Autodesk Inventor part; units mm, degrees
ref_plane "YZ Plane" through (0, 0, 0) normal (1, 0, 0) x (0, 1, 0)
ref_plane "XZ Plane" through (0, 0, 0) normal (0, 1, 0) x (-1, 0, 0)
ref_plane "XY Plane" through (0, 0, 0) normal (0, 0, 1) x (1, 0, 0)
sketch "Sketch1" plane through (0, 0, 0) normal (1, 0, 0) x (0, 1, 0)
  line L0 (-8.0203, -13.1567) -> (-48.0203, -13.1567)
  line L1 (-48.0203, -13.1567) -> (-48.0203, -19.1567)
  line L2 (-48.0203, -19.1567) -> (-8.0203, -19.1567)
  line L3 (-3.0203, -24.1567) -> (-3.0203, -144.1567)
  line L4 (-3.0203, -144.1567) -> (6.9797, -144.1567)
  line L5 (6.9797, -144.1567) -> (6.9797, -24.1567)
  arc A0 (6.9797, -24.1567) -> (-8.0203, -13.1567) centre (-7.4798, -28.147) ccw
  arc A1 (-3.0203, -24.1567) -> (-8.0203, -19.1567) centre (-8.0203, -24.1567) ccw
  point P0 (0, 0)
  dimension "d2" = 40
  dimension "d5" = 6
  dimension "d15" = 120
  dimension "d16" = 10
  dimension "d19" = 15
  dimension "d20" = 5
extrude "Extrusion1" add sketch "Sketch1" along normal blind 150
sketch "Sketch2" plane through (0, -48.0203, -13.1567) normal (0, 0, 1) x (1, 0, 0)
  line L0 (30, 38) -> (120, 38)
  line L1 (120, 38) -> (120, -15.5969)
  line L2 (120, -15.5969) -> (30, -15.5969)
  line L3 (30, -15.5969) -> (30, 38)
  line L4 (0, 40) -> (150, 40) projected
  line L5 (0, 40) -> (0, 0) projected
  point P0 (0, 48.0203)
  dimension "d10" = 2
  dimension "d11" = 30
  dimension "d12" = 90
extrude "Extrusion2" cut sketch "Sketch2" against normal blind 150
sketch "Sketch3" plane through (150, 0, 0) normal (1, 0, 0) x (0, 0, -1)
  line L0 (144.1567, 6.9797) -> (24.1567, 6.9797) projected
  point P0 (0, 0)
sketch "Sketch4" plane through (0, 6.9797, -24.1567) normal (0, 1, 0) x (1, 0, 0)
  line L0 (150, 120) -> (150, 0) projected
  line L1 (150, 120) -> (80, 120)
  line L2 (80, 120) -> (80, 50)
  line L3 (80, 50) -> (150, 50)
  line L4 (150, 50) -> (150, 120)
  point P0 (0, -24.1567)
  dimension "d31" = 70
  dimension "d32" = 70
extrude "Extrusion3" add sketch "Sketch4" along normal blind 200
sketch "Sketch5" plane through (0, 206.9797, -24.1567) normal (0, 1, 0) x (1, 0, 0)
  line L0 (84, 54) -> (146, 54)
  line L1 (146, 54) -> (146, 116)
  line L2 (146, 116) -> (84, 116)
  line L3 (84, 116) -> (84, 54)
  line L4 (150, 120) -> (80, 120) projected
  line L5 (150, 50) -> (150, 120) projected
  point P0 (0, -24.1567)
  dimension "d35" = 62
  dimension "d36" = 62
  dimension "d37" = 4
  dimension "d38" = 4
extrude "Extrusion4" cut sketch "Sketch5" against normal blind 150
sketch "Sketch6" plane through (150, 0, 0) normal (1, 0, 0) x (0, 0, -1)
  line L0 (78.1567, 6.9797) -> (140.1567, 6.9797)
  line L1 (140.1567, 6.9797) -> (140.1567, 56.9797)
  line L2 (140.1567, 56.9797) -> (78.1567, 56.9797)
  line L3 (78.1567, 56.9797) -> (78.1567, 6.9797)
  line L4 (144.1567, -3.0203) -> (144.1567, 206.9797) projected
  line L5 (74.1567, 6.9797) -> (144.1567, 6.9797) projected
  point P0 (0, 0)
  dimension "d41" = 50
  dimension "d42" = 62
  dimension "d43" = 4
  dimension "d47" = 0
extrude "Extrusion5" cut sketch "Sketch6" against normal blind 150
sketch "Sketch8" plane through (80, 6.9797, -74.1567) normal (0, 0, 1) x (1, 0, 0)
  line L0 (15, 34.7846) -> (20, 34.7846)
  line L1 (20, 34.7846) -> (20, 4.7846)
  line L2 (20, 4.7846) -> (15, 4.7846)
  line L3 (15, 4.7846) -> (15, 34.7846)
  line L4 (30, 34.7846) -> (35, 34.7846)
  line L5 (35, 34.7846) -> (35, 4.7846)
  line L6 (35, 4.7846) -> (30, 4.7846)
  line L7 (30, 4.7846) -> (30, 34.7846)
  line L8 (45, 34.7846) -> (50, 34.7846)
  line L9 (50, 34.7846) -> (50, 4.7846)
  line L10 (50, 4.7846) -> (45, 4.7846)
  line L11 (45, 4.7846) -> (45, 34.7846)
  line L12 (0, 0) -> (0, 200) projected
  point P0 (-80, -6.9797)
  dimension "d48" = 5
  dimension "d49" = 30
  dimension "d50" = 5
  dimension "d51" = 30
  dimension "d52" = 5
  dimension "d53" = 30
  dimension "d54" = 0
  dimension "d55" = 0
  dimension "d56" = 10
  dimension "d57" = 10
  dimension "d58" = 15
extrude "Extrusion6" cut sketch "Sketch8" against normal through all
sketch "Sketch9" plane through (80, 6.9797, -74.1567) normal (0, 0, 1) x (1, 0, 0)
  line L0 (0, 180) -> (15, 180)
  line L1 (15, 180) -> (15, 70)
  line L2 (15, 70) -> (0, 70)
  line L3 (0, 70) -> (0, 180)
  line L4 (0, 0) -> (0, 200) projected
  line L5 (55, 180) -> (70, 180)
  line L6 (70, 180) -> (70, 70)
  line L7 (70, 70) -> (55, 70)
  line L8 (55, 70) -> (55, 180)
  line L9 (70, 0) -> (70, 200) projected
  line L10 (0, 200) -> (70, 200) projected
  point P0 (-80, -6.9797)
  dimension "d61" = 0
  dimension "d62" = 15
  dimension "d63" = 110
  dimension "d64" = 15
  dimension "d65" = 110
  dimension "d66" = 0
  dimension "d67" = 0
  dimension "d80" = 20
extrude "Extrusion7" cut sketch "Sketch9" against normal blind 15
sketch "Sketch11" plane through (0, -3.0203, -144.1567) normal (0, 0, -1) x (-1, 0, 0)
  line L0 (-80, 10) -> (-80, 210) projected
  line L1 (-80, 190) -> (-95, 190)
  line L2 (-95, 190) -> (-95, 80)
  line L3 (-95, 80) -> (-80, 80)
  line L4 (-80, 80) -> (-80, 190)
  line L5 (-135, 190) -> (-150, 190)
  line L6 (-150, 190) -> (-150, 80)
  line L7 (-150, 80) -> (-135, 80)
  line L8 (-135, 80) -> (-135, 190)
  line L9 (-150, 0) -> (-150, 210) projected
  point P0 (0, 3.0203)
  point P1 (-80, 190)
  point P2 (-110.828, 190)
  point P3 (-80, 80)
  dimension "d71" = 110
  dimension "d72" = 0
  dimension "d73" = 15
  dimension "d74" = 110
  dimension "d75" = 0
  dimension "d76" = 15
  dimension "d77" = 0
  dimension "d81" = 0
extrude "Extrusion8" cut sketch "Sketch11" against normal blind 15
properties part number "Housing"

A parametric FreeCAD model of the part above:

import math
import FreeCAD as App
import Part
import Sketcher


def add_polygon(sketch, points):
    """Adds a closed chain of lines whose ends are joined by coincident constraints."""
    first, n = sketch.GeometryCount, len(points)
    for a, b in zip(points, points[1:] + points[:1]):
        sketch.addGeometry(Part.LineSegment(App.Vector(*a, 0), App.Vector(*b, 0)), False)
    for i in range(n):
        sketch.addConstraint(Sketcher.Constraint("Coincident", first + i, 2, first + (i + 1) % n, 1))

doc = App.newDocument("Part")
body = doc.addObject("PartDesign::Body", "Body")

# Sketch on YZ plane
sketch1 = body.newObject("Sketcher::SketchObject", "Sketch")
sketch1.AttachmentSupport = (doc.getObject("YZ_Plane"), [""])
sketch1.MapMode = "FlatFace"
sketch1.addGeometry([
    Part.ArcOfCircle(Part.Circle(App.Vector(-7, -28, 0), App.Vector(0, 0, 1), 15), math.radians(15), math.radians(92)),  # 0
    Part.LineSegment(App.Vector(-8, -13, 0), App.Vector(-48, -13, 0)),  # 1
    Part.LineSegment(App.Vector(-48, -13, 0), App.Vector(-48, -19, 0)),  # 2
    Part.LineSegment(App.Vector(-48, -19, 0), App.Vector(-8, -19, 0)),  # 3
    Part.ArcOfCircle(Part.Circle(App.Vector(-8, -24, 0), App.Vector(0, 0, 1), 5), math.radians(0), math.radians(90)),  # 4
    Part.LineSegment(App.Vector(-3, -24, 0), App.Vector(-3, -144, 0)),  # 5
    Part.LineSegment(App.Vector(-3, -144, 0), App.Vector(7, -144, 0)),  # 6
    Part.LineSegment(App.Vector(7, -144, 0), App.Vector(7, -24, 0)),  # 7
], False)
sketch1.addConstraint([
    Sketcher.Constraint("Coincident", 0, 2, 1, 1),
    Sketcher.Constraint("Coincident", 1, 2, 2, 1),
    Sketcher.Constraint("Coincident", 2, 2, 3, 1),
    Sketcher.Constraint("Tangent", 3, 2, 4, 2),
    Sketcher.Constraint("Tangent", 4, 1, 5, 1),
    Sketcher.Constraint("Coincident", 5, 2, 6, 1),
    Sketcher.Constraint("Coincident", 6, 2, 7, 1),
    Sketcher.Constraint("Coincident", 7, 2, 0, 1),
    Sketcher.Constraint("Horizontal", 1),
    Sketcher.Constraint("Vertical", 2),
    Sketcher.Constraint("Horizontal", 3),
    Sketcher.Constraint("Vertical", 5),
    Sketcher.Constraint("Horizontal", 6),
    Sketcher.Constraint("Vertical", 7),
    Sketcher.Constraint("Horizontal", 4, 1, 7, 2),
    Sketcher.Constraint("Vertical", 4, 3, 0, 2),
    Sketcher.Constraint("Radius", 0, 15.0),
    Sketcher.Constraint("Radius", 4, 5.0),
    Sketcher.Constraint("DistanceX", 1, 2, 1, 1, 40.0),
    Sketcher.Constraint("DistanceX", 6, 1, 6, 2, 10.0),
    Sketcher.Constraint("DistanceY", 2, 2, 2, 1, 6.0),
    Sketcher.Constraint("DistanceY", 5, 2, 5, 1, 120.0),
    Sketcher.Constraint("DistanceY", 0, 3, -1, 1, 28.147),
    Sketcher.Constraint("DistanceX", 0, 3, -1, 1, 7.4798),
])
pad1 = body.newObject("PartDesign::Pad", "Pad")
pad1.Profile = sketch1
pad1.Length = 150

# Sketch on XY plane
sketch2 = body.newObject("Sketcher::SketchObject", "Sketch001")
sketch2.AttachmentSupport = (doc.getObject("XY_Plane"), [""])
sketch2.MapMode = "FlatFace"
sketch2.AttachmentOffset = App.Placement(App.Vector(0, 0, -13.1567), App.Rotation())
add_polygon(sketch2, [(120, -10), (30, -10), (30, -64), (120, -64)])  # lines 0-3
sketch2.addConstraint([
    Sketcher.Constraint("Horizontal", 0),
    Sketcher.Constraint("Vertical", 1),
    Sketcher.Constraint("Horizontal", 2),
    Sketcher.Constraint("Vertical", 3),
    Sketcher.Constraint("DistanceX", 0, 2, 0, 1, 90.0),
    Sketcher.Constraint("DistanceX", -1, 1, 0, 2, 30.0),
    Sketcher.Constraint("DistanceY", 1, 2, 1, 1, 53.597),
    Sketcher.Constraint("DistanceY", 0, 2, -1, 1, 10.0203),
])
pocket1 = body.newObject("PartDesign::Pocket", "Pocket")
pocket1.Profile = sketch2
pocket1.Length = 150

# Sketch on XZ plane
sketch3 = body.newObject("Sketcher::SketchObject", "Sketch002")
sketch3.AttachmentSupport = (doc.getObject("XZ_Plane"), [""])
sketch3.MapMode = "FlatFace"
sketch3.AttachmentOffset = App.Placement(App.Vector(0, 0, -6.9797), App.Rotation())
add_polygon(sketch3, [(150, -74), (150, -144), (80, -144), (80, -74)])  # lines 0-3
sketch3.addConstraint([
    Sketcher.Constraint("Vertical", 0),
    Sketcher.Constraint("Horizontal", 1),
    Sketcher.Constraint("Vertical", 2),
    Sketcher.Constraint("Horizontal", 3),
    Sketcher.Constraint("Equal", 3, 0),
    Sketcher.Constraint("DistanceX", 1, 2, 1, 1, 70.0),
    Sketcher.Constraint("DistanceX", -1, 1, 0, 2, 150.0),
    Sketcher.Constraint("DistanceY", 0, 2, -1, 1, 144.1567),
])
pad2 = body.newObject("PartDesign::Pad", "Pad001")
pad2.Profile = sketch3
pad2.Length = 200
pad2.Reversed = True

# Sketch on XZ plane
sketch4 = body.newObject("Sketcher::SketchObject", "Sketch003")
sketch4.AttachmentSupport = (doc.getObject("XZ_Plane"), [""])
sketch4.MapMode = "FlatFace"
sketch4.AttachmentOffset = App.Placement(App.Vector(0, 0, -206.9797), App.Rotation())
add_polygon(sketch4, [(84, -140), (84, -78), (146, -78), (146, -140)])  # lines 0-3
sketch4.addConstraint([
    Sketcher.Constraint("Vertical", 0),
    Sketcher.Constraint("Horizontal", 1),
    Sketcher.Constraint("Vertical", 2),
    Sketcher.Constraint("Horizontal", 3),
    Sketcher.Constraint("Equal", 3, 0),
    Sketcher.Constraint("DistanceX", 1, 1, 1, 2, 62.0),
    Sketcher.Constraint("DistanceX", -1, 1, 0, 2, 84.0),
    Sketcher.Constraint("DistanceY", 0, 2, -1, 1, 78.1567),
])
pocket2 = body.newObject("PartDesign::Pocket", "Pocket001")
pocket2.Profile = sketch4
pocket2.Length = 150
pocket2.Reversed = True

# Sketch on YZ plane
sketch5 = body.newObject("Sketcher::SketchObject", "Sketch004")
sketch5.AttachmentSupport = (doc.getObject("YZ_Plane"), [""])
sketch5.MapMode = "FlatFace"
sketch5.AttachmentOffset = App.Placement(App.Vector(0, 0, 150), App.Rotation())
add_polygon(sketch5, [(57, -78), (7, -78), (7, -140), (57, -140)])  # lines 0-3
sketch5.addConstraint([
    Sketcher.Constraint("Horizontal", 0),
    Sketcher.Constraint("Vertical", 1),
    Sketcher.Constraint("Horizontal", 2),
    Sketcher.Constraint("Vertical", 3),
    Sketcher.Constraint("DistanceX", 0, 2, 0, 1, 50.0),
    Sketcher.Constraint("DistanceY", 1, 2, 1, 1, 62.0),
    Sketcher.Constraint("DistanceX", -1, 1, 0, 2, 6.9797),
    Sketcher.Constraint("DistanceY", 0, 2, -1, 1, 78.1567),
])
pocket3 = body.newObject("PartDesign::Pocket", "Pocket002")
pocket3.Profile = sketch5
pocket3.Length = 150

# Sketch on XY plane
sketch6 = body.newObject("Sketcher::SketchObject", "Sketch005")
sketch6.AttachmentSupport = (doc.getObject("XY_Plane"), [""])
sketch6.MapMode = "FlatFace"
sketch6.AttachmentOffset = App.Placement(App.Vector(0, 0, -74.1567), App.Rotation())
add_polygon(sketch6, [(100, 42), (95, 42), (95, 12), (100, 12)])  # lines 0-3
add_polygon(sketch6, [(115, 42), (110, 42), (110, 12), (115, 12)])  # lines 4-7
add_polygon(sketch6, [(130, 42), (125, 42), (125, 12), (130, 12)])  # lines 8-11
sketch6.addConstraint([
    Sketcher.Constraint("Horizontal", 0),
    Sketcher.Constraint("Vertical", 1),
    Sketcher.Constraint("Horizontal", 2),
    Sketcher.Constraint("Vertical", 3),
    Sketcher.Constraint("Horizontal", 4),
    Sketcher.Constraint("Vertical", 5),
    Sketcher.Constraint("Horizontal", 6),
    Sketcher.Constraint("Vertical", 7),
    Sketcher.Constraint("Horizontal", 8),
    Sketcher.Constraint("Vertical", 9),
    Sketcher.Constraint("Horizontal", 10),
    Sketcher.Constraint("Vertical", 11),
    Sketcher.Constraint("Horizontal", 3, 2, 4, 2),
    Sketcher.Constraint("Horizontal", 2, 2, 5, 2),
    Sketcher.Constraint("Horizontal", 7, 2, 8, 2),
    Sketcher.Constraint("Horizontal", 6, 2, 9, 2),
    Sketcher.Constraint("Equal", 2, 4),
    Sketcher.Constraint("Equal", 6, 8),
    Sketcher.Constraint("DistanceX", 0, 2, 0, 1, 5.0),
    Sketcher.Constraint("DistanceY", 1, 2, 1, 1, 30.0),
    Sketcher.Constraint("DistanceX", 3, 2, 4, 2, 10.0),
    Sketcher.Constraint("DistanceX", 7, 2, 8, 2, 10.0),
    Sketcher.Constraint("DistanceX", -1, 1, 0, 2, 95.0),
    Sketcher.Constraint("DistanceY", -1, 1, 0, 2, 41.7643),
])
pocket4 = body.newObject("PartDesign::Pocket", "Pocket003")
pocket4.Profile = sketch6
pocket4.Type = "ThroughAll"

# Sketch on XY plane
sketch7 = body.newObject("Sketcher::SketchObject", "Sketch006")
sketch7.AttachmentSupport = (doc.getObject("XY_Plane"), [""])
sketch7.MapMode = "FlatFace"
sketch7.AttachmentOffset = App.Placement(App.Vector(0, 0, -74.1567), App.Rotation())
add_polygon(sketch7, [(95, 187), (80, 187), (80, 77), (95, 77)])  # lines 0-3
add_polygon(sketch7, [(150, 77), (150, 187), (135, 187), (135, 77)])  # lines 4-7
sketch7.addConstraint([
    Sketcher.Constraint("Horizontal", 0),
    Sketcher.Constraint("Vertical", 1),
    Sketcher.Constraint("Horizontal", 2),
    Sketcher.Constraint("Vertical", 3),
    Sketcher.Constraint("Vertical", 4),
    Sketcher.Constraint("Horizontal", 5),
    Sketcher.Constraint("Vertical", 6),
    Sketcher.Constraint("Horizontal", 7),
    Sketcher.Constraint("Horizontal", 3, 2, 4, 2),
    Sketcher.Constraint("Horizontal", 2, 2, 6, 2),
    Sketcher.Constraint("Equal", 2, 5),
    Sketcher.Constraint("DistanceX", 0, 2, 0, 1, 15.0),
    Sketcher.Constraint("DistanceY", 1, 2, 1, 1, 110.0),
    Sketcher.Constraint("DistanceX", -1, 1, 0, 2, 80.0),
    Sketcher.Constraint("DistanceX", -1, 1, 4, 2, 150.0),
    Sketcher.Constraint("DistanceY", -1, 1, 0, 2, 186.9797),
])
pocket5 = body.newObject("PartDesign::Pocket", "Pocket004")
pocket5.Profile = sketch7
pocket5.Length = 15

# Sketch on XY plane
sketch8 = body.newObject("Sketcher::SketchObject", "Sketch007")
sketch8.AttachmentSupport = (doc.getObject("XY_Plane"), [""])
sketch8.MapMode = "FlatFace"
sketch8.AttachmentOffset = App.Placement(App.Vector(0, 0, -144.1567), App.Rotation())
add_polygon(sketch8, [(95, 77), (80, 77), (80, 187), (95, 187)])  # lines 0-3
add_polygon(sketch8, [(135, 77), (135, 187), (150, 187), (150, 77)])  # lines 4-7
sketch8.addConstraint([
    Sketcher.Constraint("Horizontal", 0),
    Sketcher.Constraint("Vertical", 1),
    Sketcher.Constraint("Horizontal", 2),
    Sketcher.Constraint("Vertical", 3),
    Sketcher.Constraint("Vertical", 4),
    Sketcher.Constraint("Horizontal", 5),
    Sketcher.Constraint("Vertical", 6),
    Sketcher.Constraint("Horizontal", 7),
    Sketcher.Constraint("Horizontal", 2, 2, 4, 2),
    Sketcher.Constraint("Horizontal", 3, 2, 6, 2),
    Sketcher.Constraint("Equal", 2, 5),
    Sketcher.Constraint("DistanceX", 0, 2, 0, 1, 15.0),
    Sketcher.Constraint("DistanceY", 1, 1, 1, 2, 110.0),
    Sketcher.Constraint("DistanceX", -1, 1, 0, 2, 80.0),
    Sketcher.Constraint("DistanceX", -1, 1, 4, 2, 135.0),
    Sketcher.Constraint("DistanceY", -1, 1, 0, 2, 76.9797),
])
pocket6 = body.newObject("PartDesign::Pocket", "Pocket005")
pocket6.Profile = sketch8
pocket6.Length = 15
pocket6.Reversed = True

doc.recompute()
